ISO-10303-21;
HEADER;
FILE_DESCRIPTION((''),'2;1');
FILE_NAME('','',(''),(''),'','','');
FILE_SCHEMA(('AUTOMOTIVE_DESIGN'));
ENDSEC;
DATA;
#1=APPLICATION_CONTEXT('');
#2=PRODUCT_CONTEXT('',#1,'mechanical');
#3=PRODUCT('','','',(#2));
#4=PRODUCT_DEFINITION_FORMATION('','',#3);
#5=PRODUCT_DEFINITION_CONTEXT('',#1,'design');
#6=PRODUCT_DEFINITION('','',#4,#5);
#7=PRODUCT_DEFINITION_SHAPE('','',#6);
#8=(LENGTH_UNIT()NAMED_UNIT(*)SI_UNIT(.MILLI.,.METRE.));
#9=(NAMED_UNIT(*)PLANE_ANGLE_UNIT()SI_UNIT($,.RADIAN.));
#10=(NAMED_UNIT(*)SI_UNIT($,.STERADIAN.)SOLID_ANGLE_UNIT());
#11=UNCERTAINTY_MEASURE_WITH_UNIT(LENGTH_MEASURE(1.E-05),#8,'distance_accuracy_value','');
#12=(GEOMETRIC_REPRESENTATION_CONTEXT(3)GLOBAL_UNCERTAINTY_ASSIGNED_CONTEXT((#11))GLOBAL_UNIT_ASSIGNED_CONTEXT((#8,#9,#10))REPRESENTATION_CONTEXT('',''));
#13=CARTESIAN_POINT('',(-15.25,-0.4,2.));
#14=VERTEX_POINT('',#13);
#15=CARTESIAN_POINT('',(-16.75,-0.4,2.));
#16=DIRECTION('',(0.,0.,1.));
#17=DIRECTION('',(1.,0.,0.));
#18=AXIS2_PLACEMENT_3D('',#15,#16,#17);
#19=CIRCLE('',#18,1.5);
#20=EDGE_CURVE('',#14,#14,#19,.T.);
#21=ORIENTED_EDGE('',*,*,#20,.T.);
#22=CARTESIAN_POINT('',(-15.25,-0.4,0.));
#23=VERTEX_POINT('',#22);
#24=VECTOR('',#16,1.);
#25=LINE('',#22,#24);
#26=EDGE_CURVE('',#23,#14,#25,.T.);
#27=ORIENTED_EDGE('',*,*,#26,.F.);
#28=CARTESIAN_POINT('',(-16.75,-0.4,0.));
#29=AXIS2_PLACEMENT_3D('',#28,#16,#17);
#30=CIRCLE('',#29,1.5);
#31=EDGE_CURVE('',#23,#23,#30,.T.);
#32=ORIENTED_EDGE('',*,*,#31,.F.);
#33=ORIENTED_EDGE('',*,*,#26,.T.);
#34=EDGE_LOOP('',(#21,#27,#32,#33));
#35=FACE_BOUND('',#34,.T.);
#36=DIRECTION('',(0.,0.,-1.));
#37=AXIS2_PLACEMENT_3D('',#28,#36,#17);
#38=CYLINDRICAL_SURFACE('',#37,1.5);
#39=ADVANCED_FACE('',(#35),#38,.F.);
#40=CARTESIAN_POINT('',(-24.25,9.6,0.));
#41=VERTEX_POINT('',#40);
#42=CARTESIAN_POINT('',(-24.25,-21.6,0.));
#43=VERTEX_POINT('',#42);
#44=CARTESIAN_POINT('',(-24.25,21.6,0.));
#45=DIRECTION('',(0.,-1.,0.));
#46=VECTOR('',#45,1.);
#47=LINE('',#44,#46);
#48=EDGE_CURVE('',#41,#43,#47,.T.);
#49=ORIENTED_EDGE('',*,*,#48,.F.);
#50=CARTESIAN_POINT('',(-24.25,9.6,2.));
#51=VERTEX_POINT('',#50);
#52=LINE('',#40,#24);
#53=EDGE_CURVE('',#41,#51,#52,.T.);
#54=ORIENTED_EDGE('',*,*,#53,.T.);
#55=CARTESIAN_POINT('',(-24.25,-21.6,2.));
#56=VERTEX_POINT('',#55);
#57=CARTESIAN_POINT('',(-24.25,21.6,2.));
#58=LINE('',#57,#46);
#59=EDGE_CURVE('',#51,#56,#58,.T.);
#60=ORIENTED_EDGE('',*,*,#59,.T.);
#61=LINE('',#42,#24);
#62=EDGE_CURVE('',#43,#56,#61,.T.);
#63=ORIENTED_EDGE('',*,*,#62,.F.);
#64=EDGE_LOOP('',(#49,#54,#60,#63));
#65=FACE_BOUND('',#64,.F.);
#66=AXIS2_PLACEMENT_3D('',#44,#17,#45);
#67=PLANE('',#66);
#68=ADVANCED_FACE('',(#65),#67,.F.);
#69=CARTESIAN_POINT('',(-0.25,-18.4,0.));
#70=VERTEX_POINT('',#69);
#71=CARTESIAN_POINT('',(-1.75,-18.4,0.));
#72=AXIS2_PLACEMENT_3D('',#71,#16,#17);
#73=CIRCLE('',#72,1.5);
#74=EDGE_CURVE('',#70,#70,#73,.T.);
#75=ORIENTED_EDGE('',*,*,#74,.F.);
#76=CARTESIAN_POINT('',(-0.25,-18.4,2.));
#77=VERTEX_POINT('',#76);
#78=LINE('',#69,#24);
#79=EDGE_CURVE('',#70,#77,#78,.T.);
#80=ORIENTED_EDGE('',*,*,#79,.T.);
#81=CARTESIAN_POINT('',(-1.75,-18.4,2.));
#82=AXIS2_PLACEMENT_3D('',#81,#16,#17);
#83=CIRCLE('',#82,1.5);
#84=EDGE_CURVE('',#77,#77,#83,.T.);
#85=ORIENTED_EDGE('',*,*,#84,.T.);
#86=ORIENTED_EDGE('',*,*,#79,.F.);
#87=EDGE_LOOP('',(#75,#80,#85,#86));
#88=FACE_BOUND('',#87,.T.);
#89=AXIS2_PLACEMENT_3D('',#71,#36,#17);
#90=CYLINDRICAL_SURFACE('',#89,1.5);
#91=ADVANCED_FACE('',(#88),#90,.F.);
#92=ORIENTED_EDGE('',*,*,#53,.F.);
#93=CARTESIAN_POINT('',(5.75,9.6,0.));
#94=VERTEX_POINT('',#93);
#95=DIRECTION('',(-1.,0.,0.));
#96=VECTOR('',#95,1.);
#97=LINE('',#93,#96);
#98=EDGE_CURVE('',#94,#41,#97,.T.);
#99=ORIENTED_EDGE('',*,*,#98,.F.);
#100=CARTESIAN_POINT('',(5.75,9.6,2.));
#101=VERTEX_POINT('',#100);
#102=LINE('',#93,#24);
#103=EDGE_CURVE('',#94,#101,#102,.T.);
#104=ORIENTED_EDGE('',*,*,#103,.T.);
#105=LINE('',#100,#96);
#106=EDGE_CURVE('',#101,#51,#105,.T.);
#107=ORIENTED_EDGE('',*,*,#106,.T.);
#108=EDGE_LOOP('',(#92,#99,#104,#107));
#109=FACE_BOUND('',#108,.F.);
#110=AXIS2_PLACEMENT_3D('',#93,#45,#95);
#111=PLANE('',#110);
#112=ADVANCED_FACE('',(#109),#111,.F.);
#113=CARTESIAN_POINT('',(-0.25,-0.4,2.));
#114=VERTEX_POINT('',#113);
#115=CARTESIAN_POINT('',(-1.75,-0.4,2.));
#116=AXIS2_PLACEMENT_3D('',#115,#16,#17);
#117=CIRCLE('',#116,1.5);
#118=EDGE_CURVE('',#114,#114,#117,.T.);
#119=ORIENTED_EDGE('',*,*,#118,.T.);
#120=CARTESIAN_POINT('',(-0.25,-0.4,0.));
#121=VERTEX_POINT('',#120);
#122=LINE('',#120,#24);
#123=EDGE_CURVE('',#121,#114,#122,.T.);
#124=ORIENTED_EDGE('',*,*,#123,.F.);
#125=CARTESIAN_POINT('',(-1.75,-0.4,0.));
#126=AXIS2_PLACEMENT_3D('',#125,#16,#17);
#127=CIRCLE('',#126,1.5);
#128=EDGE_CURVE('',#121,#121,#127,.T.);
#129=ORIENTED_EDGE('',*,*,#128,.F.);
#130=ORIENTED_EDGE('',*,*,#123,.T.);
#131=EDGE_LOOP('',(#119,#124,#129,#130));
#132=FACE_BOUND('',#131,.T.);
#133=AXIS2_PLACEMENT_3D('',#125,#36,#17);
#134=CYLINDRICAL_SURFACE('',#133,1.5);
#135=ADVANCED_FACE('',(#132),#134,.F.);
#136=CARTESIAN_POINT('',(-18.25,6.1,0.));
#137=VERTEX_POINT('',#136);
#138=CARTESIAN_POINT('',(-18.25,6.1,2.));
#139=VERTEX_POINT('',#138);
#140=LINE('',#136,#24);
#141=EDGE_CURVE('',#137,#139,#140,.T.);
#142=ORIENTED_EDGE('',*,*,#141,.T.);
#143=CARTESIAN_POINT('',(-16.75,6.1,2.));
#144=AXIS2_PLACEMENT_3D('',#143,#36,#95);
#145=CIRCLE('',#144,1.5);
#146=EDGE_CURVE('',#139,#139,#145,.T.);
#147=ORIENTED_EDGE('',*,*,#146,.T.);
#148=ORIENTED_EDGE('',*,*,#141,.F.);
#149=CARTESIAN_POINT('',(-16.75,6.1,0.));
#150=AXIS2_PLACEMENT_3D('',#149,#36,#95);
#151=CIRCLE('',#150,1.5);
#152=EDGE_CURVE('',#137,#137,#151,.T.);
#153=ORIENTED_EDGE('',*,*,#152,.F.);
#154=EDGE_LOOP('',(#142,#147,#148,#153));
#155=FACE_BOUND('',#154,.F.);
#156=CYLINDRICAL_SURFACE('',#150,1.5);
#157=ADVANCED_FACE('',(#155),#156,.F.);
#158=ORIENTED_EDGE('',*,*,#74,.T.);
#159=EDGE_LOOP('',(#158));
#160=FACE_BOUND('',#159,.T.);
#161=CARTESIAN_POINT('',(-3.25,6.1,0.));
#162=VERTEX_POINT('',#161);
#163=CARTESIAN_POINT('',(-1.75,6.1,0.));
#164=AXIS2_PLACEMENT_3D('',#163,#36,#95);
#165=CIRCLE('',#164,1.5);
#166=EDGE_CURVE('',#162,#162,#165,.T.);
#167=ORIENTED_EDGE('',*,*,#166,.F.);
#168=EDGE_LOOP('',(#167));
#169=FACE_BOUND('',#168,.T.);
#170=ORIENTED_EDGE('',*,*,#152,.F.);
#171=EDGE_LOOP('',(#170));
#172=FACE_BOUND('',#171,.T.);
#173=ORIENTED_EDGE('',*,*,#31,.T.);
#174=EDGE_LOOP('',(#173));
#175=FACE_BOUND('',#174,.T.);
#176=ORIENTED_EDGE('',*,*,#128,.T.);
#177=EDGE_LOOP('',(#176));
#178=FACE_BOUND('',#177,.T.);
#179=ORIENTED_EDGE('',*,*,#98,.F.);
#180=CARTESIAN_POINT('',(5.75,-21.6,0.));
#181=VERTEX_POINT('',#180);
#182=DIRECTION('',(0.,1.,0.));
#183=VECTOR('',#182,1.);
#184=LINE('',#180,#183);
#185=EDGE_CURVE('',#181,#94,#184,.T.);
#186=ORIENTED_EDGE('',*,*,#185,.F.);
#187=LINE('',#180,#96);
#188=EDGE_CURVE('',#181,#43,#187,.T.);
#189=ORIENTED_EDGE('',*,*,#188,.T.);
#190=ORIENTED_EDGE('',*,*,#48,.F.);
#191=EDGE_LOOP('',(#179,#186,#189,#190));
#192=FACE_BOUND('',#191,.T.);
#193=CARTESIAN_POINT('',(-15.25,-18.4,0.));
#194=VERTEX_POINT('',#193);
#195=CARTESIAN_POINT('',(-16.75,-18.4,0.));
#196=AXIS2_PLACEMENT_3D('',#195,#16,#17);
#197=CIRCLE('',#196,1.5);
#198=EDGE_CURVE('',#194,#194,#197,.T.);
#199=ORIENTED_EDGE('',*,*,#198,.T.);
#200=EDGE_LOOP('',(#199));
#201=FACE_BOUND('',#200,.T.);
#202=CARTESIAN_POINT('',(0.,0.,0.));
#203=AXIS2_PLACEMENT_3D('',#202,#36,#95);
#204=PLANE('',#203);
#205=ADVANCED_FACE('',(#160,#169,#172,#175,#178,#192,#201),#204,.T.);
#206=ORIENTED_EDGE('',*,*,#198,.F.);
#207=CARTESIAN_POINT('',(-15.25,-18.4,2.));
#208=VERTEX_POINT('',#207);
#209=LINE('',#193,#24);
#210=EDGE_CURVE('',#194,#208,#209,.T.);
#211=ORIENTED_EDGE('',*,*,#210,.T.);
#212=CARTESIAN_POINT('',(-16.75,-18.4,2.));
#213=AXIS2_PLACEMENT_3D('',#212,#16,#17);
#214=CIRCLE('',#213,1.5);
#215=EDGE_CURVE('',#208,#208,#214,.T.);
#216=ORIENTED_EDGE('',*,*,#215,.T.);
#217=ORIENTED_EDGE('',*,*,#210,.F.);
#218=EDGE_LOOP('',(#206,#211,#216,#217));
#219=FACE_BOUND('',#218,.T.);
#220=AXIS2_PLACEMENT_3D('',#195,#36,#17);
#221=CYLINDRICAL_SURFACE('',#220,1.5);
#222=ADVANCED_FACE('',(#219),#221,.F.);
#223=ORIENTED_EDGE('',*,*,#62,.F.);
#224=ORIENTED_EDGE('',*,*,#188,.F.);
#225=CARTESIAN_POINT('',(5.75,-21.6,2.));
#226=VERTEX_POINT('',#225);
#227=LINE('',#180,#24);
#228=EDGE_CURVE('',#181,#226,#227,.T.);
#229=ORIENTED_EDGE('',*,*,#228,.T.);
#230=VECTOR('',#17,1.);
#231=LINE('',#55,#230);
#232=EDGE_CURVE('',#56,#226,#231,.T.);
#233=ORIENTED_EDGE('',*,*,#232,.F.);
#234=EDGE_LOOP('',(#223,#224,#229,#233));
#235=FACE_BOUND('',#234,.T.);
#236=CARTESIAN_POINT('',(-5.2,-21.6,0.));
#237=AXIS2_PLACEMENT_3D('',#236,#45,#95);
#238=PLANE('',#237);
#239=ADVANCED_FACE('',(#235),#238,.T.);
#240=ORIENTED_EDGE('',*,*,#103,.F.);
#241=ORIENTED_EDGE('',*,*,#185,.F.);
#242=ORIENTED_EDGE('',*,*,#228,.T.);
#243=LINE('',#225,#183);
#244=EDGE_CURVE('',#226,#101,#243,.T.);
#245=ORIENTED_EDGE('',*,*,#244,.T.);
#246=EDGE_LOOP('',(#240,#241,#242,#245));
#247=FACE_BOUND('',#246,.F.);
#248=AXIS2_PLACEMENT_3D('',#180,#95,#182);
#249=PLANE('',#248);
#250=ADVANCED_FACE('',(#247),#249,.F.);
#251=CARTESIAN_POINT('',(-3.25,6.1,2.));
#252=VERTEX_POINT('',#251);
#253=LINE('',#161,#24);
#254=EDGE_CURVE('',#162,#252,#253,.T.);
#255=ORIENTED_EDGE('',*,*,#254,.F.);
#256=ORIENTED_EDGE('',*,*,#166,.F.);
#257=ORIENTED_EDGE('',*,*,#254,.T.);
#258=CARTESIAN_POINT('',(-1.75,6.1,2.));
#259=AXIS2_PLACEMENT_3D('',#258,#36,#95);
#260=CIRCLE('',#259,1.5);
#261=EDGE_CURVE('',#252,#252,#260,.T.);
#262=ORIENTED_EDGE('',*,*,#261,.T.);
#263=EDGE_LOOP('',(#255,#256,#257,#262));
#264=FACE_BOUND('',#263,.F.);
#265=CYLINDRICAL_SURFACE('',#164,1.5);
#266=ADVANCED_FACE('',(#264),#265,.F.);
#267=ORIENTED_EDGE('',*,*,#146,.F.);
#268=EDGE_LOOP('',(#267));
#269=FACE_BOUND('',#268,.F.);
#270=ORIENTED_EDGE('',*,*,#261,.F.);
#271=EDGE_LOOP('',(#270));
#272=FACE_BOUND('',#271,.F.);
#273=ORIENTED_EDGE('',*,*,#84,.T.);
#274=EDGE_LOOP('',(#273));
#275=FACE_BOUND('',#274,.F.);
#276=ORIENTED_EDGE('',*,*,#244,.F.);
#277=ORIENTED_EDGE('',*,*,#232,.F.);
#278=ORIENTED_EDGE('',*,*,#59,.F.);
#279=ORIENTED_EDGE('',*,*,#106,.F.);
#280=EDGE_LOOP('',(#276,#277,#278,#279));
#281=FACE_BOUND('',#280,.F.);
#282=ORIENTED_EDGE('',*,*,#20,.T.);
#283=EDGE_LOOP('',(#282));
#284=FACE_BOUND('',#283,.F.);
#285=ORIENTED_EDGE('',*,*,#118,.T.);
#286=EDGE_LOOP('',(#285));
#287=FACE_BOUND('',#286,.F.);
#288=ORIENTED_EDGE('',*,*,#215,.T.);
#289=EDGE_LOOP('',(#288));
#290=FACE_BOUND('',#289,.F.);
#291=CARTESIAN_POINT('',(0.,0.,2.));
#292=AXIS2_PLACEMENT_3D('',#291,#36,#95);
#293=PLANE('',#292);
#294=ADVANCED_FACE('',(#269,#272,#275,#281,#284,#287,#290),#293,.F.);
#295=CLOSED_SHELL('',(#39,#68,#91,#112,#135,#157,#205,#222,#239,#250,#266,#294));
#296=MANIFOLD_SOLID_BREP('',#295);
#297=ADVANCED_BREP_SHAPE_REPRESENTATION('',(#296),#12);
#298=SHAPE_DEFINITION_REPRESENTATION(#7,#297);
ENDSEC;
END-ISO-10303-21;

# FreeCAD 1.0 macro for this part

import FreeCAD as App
import Part
import Sketcher

doc = App.newDocument("Part")
body = doc.addObject("PartDesign::Body", "Body")
body.AllowCompound = True

sketch1 = body.newObject("Sketcher::SketchObject", "Sketch")
sketch1.AttachmentSupport = (doc.getObject("XY_Plane"), [""])
sketch1.MapMode = "FlatFace"
sketch1.addGeometry(Part.LineSegment(App.Vector(5.8, -21.6, 0), App.Vector(5.8, 21.6, 0)), False)
sketch1.addGeometry(Part.LineSegment(App.Vector(5.8, 21.6, 0), App.Vector(-24.2, 21.6, 0)), False)
sketch1.addGeometry(Part.LineSegment(App.Vector(-24.2, 21.6, 0), App.Vector(-24.2, -21.6, 0)), False)
sketch1.addGeometry(Part.LineSegment(App.Vector(-24.2, -21.6, 0), App.Vector(5.8, -21.6, 0)), False)
sketch1.addGeometry(Part.Circle(App.Vector(-1.8, -18.4, 0), App.Vector(0, 0, 1), 1.5), False)
sketch1.addGeometry(Part.Circle(App.Vector(-1.8, -0.4, 0), App.Vector(0, 0, 1), 1.5), False)
sketch1.addGeometry(Part.Circle(App.Vector(-1.8, 17.6, 0), App.Vector(0, 0, 1), 1.5), False)
sketch1.addGeometry(Part.Circle(App.Vector(-16.8, 17.6, 0), App.Vector(0, 0, 1), 1.5), False)
sketch1.addGeometry(Part.Circle(App.Vector(-16.8, -18.4, 0), App.Vector(0, 0, 1), 1.5), False)
sketch1.addGeometry(Part.Circle(App.Vector(-16.8, -0.4, 0), App.Vector(0, 0, 1), 1.5), False)
sketch1.addConstraint(Sketcher.Constraint("Coincident", 0, 2, 1, 1))
sketch1.addConstraint(Sketcher.Constraint("Coincident", 1, 2, 2, 1))
sketch1.addConstraint(Sketcher.Constraint("Coincident", 2, 2, 3, 1))
sketch1.addConstraint(Sketcher.Constraint("Coincident", 3, 2, 0, 1))
sketch1.addConstraint(Sketcher.Constraint("Vertical", 0))
sketch1.addConstraint(Sketcher.Constraint("Horizontal", 1))
sketch1.addConstraint(Sketcher.Constraint("Vertical", 2))
sketch1.addConstraint(Sketcher.Constraint("Horizontal", 3))
sketch1.addConstraint(Sketcher.Constraint("Equal", 4, 5))
sketch1.addConstraint(Sketcher.Constraint("Equal", 5, 6))
sketch1.addConstraint(Sketcher.Constraint("Equal", 6, 7))
sketch1.addConstraint(Sketcher.Constraint("Equal", 7, 8))
sketch1.addConstraint(Sketcher.Constraint("Equal", 8, 9))
sketch1.addConstraint(Sketcher.Constraint("Horizontal", 6, 3, 7, 3))
sketch1.addConstraint(Sketcher.Constraint("Horizontal", 4, 3, 8, 3))
sketch1.addConstraint(Sketcher.Constraint("Horizontal", 5, 3, 9, 3))
sketch1.addConstraint(Sketcher.Constraint("Vertical", 4, 3, 5, 3))
sketch1.addConstraint(Sketcher.Constraint("Vertical", 5, 3, 6, 3))
sketch1.addConstraint(Sketcher.Constraint("Vertical", 7, 3, 8, 3))
sketch1.addConstraint(Sketcher.Constraint("Vertical", 8, 3, 9, 3))
sketch1.addConstraint(Sketcher.Constraint("Diameter", 4, 3.0))
sketch1.addConstraint(Sketcher.Constraint("DistanceX", 1, 2, 1, 1, 30.0))
sketch1.addConstraint(Sketcher.Constraint("DistanceY", 0, 1, 0, 2, 43.2))
sketch1.addConstraint(Sketcher.Constraint("DistanceY", 4, 3, 5, 3, 18.0))
sketch1.addConstraint(Sketcher.Constraint("DistanceY", 5, 3, 6, 3, 18.0))
sketch1.addConstraint(Sketcher.Constraint("DistanceX", 7, 3, 6, 3, 15.0))
sketch1.addConstraint(Sketcher.Constraint("DistanceY", 6, 3, 0, 2, 4.0))
sketch1.addConstraint(Sketcher.Constraint("DistanceY", 4, 3, -1, 1, 18.4))
sketch1.addConstraint(Sketcher.Constraint("DistanceX", 6, 3, 0, 2, 7.5))
sketch1.addConstraint(Sketcher.Constraint("DistanceX", 4, 3, -1, 1, 1.75))
pad1 = body.newObject("PartDesign::Pad", "Pad")
pad1.Profile = sketch1
pad1.Length = 2

sketch2 = body.newObject("Sketcher::SketchObject", "Sketch001")
sketch2.AttachmentSupport = (doc.getObject("XY_Plane"), [""])
sketch2.MapMode = "FlatFace"
sketch2.addGeometry(Part.LineSegment(App.Vector(5.8, 21.6, 0), App.Vector(5.8, 10.6, 0)), False)
sketch2.addGeometry(Part.LineSegment(App.Vector(5.8, 10.6, 0), App.Vector(-5.2, 10.6, 0)), False)
sketch2.addGeometry(Part.LineSegment(App.Vector(-5.2, 10.6, 0), App.Vector(-5.2, -21.6, 0)), False)
sketch2.addGeometry(Part.LineSegment(App.Vector(-5.2, -21.6, 0), App.Vector(-13.3, -21.6, 0)), False)
sketch2.addGeometry(Part.LineSegment(App.Vector(-13.3, -21.6, 0), App.Vector(-13.3, 10.6, 0)), False)
sketch2.addGeometry(Part.LineSegment(App.Vector(-13.3, 10.6, 0), App.Vector(-24.2, 10.6, 0)), False)
sketch2.addGeometry(Part.LineSegment(App.Vector(-24.2, 10.6, 0), App.Vector(-24.2, 21.6, 0)), False)
sketch2.addGeometry(Part.LineSegment(App.Vector(-24.2, 21.6, 0), App.Vector(5.8, 21.6, 0)), False)
sketch2.addGeometry(Part.Circle(App.Vector(-1.8, 17.6, 0), App.Vector(0, 0, 1), 1.5), False)
sketch2.addGeometry(Part.Circle(App.Vector(-16.8, 17.6, 0), App.Vector(0, 0, 1), 1.5), False)
sketch2.addGeometry(Part.Circle(App.Vector(-1.8, 6.1, 0), App.Vector(0, 0, 1), 1.5), False)
sketch2.addGeometry(Part.Circle(App.Vector(-16.8, 6.1, 0), App.Vector(0, 0, 1), 1.5), False)
sketch2.addConstraint(Sketcher.Constraint("Coincident", 0, 2, 1, 1))
sketch2.addConstraint(Sketcher.Constraint("Coincident", 1, 2, 2, 1))
sketch2.addConstraint(Sketcher.Constraint("Coincident", 2, 2, 3, 1))
sketch2.addConstraint(Sketcher.Constraint("Coincident", 3, 2, 4, 1))
sketch2.addConstraint(Sketcher.Constraint("Coincident", 4, 2, 5, 1))
sketch2.addConstraint(Sketcher.Constraint("Coincident", 5, 2, 6, 1))
sketch2.addConstraint(Sketcher.Constraint("Coincident", 6, 2, 7, 1))
sketch2.addConstraint(Sketcher.Constraint("Coincident", 7, 2, 0, 1))
sketch2.addConstraint(Sketcher.Constraint("Vertical", 0))
sketch2.addConstraint(Sketcher.Constraint("Horizontal", 1))
sketch2.addConstraint(Sketcher.Constraint("Vertical", 2))
sketch2.addConstraint(Sketcher.Constraint("Horizontal", 3))
sketch2.addConstraint(Sketcher.Constraint("Vertical", 4))
sketch2.addConstraint(Sketcher.Constraint("Horizontal", 5))
sketch2.addConstraint(Sketcher.Constraint("Vertical", 6))
sketch2.addConstraint(Sketcher.Constraint("Horizontal", 7))
sketch2.addConstraint(Sketcher.Constraint("Equal", 8, 9))
sketch2.addConstraint(Sketcher.Constraint("Equal", 9, 10))
sketch2.addConstraint(Sketcher.Constraint("Equal", 10, 11))
sketch2.addConstraint(Sketcher.Constraint("Horizontal", 8, 3, 9, 3))
sketch2.addConstraint(Sketcher.Constraint("Horizontal", 10, 3, 11, 3))
sketch2.addConstraint(Sketcher.Constraint("Horizontal", 1, 2, 4, 2))
sketch2.addConstraint(Sketcher.Constraint("Vertical", 8, 3, 10, 3))
sketch2.addConstraint(Sketcher.Constraint("Vertical", 9, 3, 11, 3))
sketch2.addConstraint(Sketcher.Constraint("Equal", 1, 5))
sketch2.addConstraint(Sketcher.Constraint("Diameter", 8, 3.0))
sketch2.addConstraint(Sketcher.Constraint("DistanceX", 7, 1, 7, 2, 30.0))
sketch2.addConstraint(Sketcher.Constraint("DistanceY", 0, 2, 0, 1, 11.0))
sketch2.addConstraint(Sketcher.Constraint("DistanceX", 3, 2, 3, 1, 8.1))
sketch2.addConstraint(Sketcher.Constraint("DistanceY", 2, 2, 2, 1, 32.2))
sketch2.addConstraint(Sketcher.Constraint("DistanceX", 9, 3, 8, 3, 15.0))
sketch2.addConstraint(Sketcher.Constraint("DistanceY", 0, 2, 8, 3, 7.0))
sketch2.addConstraint(Sketcher.Constraint("DistanceY", -1, 1, 8, 3, 17.6))
sketch2.addConstraint(Sketcher.Constraint("DistanceY", -1, 1, 10, 3, 6.1))
sketch2.addConstraint(Sketcher.Constraint("DistanceX", 1, 2, -1, 1, 5.2))
sketch2.addConstraint(Sketcher.Constraint("DistanceX", 10, 3, 0, 2, 7.5))
pocket1 = body.newObject("PartDesign::Pocket", "Pocket")
pocket1.Profile = sketch2
pocket1.Length = 10
pocket1.Reversed = True

sketch3 = body.newObject("Sketcher::SketchObject", "Sketch002")
sketch3.AttachmentSupport = (doc.getObject("XY_Plane"), [""])
sketch3.MapMode = "FlatFace"
sketch3.addGeometry(Part.LineSegment(App.Vector(-5, 11, 0), App.Vector(-5, -22, 0)), False)
sketch3.addGeometry(Part.LineSegment(App.Vector(-5, -22, 0), App.Vector(-13, -22, 0)), False)
sketch3.addGeometry(Part.LineSegment(App.Vector(-13, -22, 0), App.Vector(-13, 11, 0)), False)
sketch3.addGeometry(Part.LineSegment(App.Vector(-13, 11, 0), App.Vector(-5, 11, 0)), False)
sketch3.addConstraint(Sketcher.Constraint("Coincident", 0, 2, 1, 1))
sketch3.addConstraint(Sketcher.Constraint("Coincident", 1, 2, 2, 1))
sketch3.addConstraint(Sketcher.Constraint("Coincident", 2, 2, 3, 1))
sketch3.addConstraint(Sketcher.Constraint("Coincident", 3, 2, 0, 1))
sketch3.addConstraint(Sketcher.Constraint("Vertical", 0))
sketch3.addConstraint(Sketcher.Constraint("Horizontal", 1))
sketch3.addConstraint(Sketcher.Constraint("Vertical", 2))
sketch3.addConstraint(Sketcher.Constraint("Horizontal", 3))
sketch3.addConstraint(Sketcher.Constraint("DistanceX", 1, 2, 1, 1, 8.1))
sketch3.addConstraint(Sketcher.Constraint("DistanceY", 0, 2, 0, 1, 32.2))
sketch3.addConstraint(Sketcher.Constraint("DistanceX", 0, 2, -1, 1, 5.2))
sketch3.addConstraint(Sketcher.Constraint("DistanceY", 0, 2, -1, 1, 21.6))
pad2 = body.newObject("PartDesign::Pad", "Pad001")
pad2.Profile = sketch3
pad2.Length = 2

sketch4 = body.newObject("Sketcher::SketchObject", "Sketch003")
sketch4.AttachmentSupport = (doc.getObject("XY_Plane"), [""])
sketch4.MapMode = "FlatFace"
sketch4.addGeometry(Part.LineSegment(App.Vector(5.8, 9.6, 0), App.Vector(-24.2, 9.6, 0)), False)
sketch4.addGeometry(Part.LineSegment(App.Vector(-24.2, 9.6, 0), App.Vector(-24.2, 10.6, 0)), False)
sketch4.addGeometry(Part.LineSegment(App.Vector(-24.2, 10.6, 0), App.Vector(5.8, 10.6, 0)), False)
sketch4.addGeometry(Part.LineSegment(App.Vector(5.8, 10.6, 0), App.Vector(5.8, 9.6, 0)), False)
sketch4.addConstraint(Sketcher.Constraint("Coincident", 0, 2, 1, 1))
sketch4.addConstraint(Sketcher.Constraint("Coincident", 1, 2, 2, 1))
sketch4.addConstraint(Sketcher.Constraint("Coincident", 2, 2, 3, 1))
sketch4.addConstraint(Sketcher.Constraint("Coincident", 3, 2, 0, 1))
sketch4.addConstraint(Sketcher.Constraint("Horizontal", 0))
sketch4.addConstraint(Sketcher.Constraint("Vertical", 1))
sketch4.addConstraint(Sketcher.Constraint("Horizontal", 2))
sketch4.addConstraint(Sketcher.Constraint("Vertical", 3))
sketch4.addConstraint(Sketcher.Constraint("DistanceY", 1, 1, 1, 2, 1.0))
sketch4.addConstraint(Sketcher.Constraint("DistanceX", 0, 2, 0, 1, 30.0))
sketch4.addConstraint(Sketcher.Constraint("DistanceY", -1, 1, 0, 2, 9.6))
sketch4.addConstraint(Sketcher.Constraint("DistanceX", 0, 2, -1, 1, 24.25))
pocket2 = body.newObject("PartDesign::Pocket", "Pocket001")
pocket2.Profile = sketch4
pocket2.Length = 2
pocket2.Reversed = True

doc.recompute()
